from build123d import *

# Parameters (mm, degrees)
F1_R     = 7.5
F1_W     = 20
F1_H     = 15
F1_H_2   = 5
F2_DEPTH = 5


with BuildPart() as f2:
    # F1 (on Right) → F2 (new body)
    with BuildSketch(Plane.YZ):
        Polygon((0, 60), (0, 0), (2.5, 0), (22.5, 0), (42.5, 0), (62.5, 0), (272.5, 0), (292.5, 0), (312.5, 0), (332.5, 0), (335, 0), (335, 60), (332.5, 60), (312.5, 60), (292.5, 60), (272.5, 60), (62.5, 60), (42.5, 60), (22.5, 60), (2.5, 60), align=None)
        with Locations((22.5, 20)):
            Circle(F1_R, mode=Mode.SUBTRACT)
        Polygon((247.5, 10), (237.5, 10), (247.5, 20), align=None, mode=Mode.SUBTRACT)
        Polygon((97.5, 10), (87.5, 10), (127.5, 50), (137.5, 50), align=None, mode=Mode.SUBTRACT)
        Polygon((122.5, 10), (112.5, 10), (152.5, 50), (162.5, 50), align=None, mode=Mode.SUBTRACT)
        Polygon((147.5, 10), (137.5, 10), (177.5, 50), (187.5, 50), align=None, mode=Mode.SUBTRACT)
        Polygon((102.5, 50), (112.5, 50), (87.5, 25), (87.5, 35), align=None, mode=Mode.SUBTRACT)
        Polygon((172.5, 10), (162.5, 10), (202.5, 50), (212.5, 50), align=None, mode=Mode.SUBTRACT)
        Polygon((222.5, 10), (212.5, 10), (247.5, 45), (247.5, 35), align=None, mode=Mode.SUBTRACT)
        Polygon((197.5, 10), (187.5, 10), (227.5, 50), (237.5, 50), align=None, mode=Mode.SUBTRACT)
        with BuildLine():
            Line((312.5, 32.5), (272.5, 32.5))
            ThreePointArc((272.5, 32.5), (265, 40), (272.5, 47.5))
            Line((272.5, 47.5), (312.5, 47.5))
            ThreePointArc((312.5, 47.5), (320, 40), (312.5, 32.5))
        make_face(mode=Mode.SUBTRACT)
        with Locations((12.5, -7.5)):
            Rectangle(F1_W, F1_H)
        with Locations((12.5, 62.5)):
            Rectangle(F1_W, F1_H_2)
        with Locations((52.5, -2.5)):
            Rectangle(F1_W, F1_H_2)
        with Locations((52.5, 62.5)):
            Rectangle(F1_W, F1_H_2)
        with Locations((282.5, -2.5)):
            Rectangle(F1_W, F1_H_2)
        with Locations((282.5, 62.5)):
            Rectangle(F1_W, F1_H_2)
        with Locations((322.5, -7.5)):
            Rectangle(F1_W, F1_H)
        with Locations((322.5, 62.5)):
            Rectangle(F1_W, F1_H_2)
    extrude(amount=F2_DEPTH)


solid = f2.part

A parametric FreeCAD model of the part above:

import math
import FreeCAD as App
import Part
import Sketcher

V = App.Vector

doc = App.newDocument("Part")
body = doc.addObject("PartDesign::Body", "Body")

# Sketch on YZ plane
sketch1 = body.newObject("Sketcher::SketchObject", "Sketch")
sketch1.AttachmentSupport = (doc.getObject("YZ_Plane"), [""])
sketch1.MapMode = "FlatFace"
sketch1.addGeometry([
    Part.LineSegment(V(0, 60, 0), V(0, 0, 0)),  # 0
    Part.LineSegment(V(0, 0, 0), V(2.5, 0, 0)),  # 1
    Part.LineSegment(V(2.5, 0, 0), V(2.5, -15, 0)),  # 2
    Part.LineSegment(V(2.5, -15, 0), V(22.5, -15, 0)),  # 3
    Part.LineSegment(V(22.5, -15, 0), V(22.5, 0, 0)),  # 4
    Part.LineSegment(V(22.5, 0, 0), V(42.5, 0, 0)),  # 5
    Part.LineSegment(V(42.5, 0, 0), V(42.5, -5, 0)),  # 6
    Part.LineSegment(V(42.5, -5, 0), V(62.5, -5, 0)),  # 7
    Part.LineSegment(V(62.5, -5, 0), V(62.5, 0, 0)),  # 8
    Part.LineSegment(V(62.5, 0, 0), V(272.5, 0, 0)),  # 9
    Part.LineSegment(V(272.5, 0, 0), V(272.5, -5, 0)),  # 10
    Part.LineSegment(V(272.5, -5, 0), V(292.5, -5, 0)),  # 11
    Part.LineSegment(V(292.5, -5, 0), V(292.5, 0, 0)),  # 12
    Part.LineSegment(V(292.5, 0, 0), V(312.5, 0, 0)),  # 13
    Part.LineSegment(V(312.5, 0, 0), V(312.5, -15, 0)),  # 14
    Part.LineSegment(V(312.5, -15, 0), V(332.5, -15, 0)),  # 15
    Part.LineSegment(V(332.5, -15, 0), V(332.5, 0, 0)),  # 16
    Part.LineSegment(V(332.5, 0, 0), V(335, 0, 0)),  # 17
    Part.LineSegment(V(335, 0, 0), V(335, 60, 0)),  # 18
    Part.LineSegment(V(335, 60, 0), V(332.5, 60, 0)),  # 19
    Part.LineSegment(V(332.5, 60, 0), V(332.5, 65, 0)),  # 20
    Part.LineSegment(V(332.5, 65, 0), V(312.5, 65, 0)),  # 21
    Part.LineSegment(V(312.5, 65, 0), V(312.5, 60, 0)),  # 22
    Part.LineSegment(V(312.5, 60, 0), V(292.5, 60, 0)),  # 23
    Part.LineSegment(V(292.5, 60, 0), V(292.5, 65, 0)),  # 24
    Part.LineSegment(V(292.5, 65, 0), V(272.5, 65, 0)),  # 25
    Part.LineSegment(V(272.5, 65, 0), V(272.5, 60, 0)),  # 26
    Part.LineSegment(V(272.5, 60, 0), V(62.5, 60, 0)),  # 27
    Part.LineSegment(V(62.5, 60, 0), V(62.5, 65, 0)),  # 28
    Part.LineSegment(V(62.5, 65, 0), V(42.5, 65, 0)),  # 29
    Part.LineSegment(V(42.5, 65, 0), V(42.5, 60, 0)),  # 30
    Part.LineSegment(V(42.5, 60, 0), V(22.5, 60, 0)),  # 31
    Part.LineSegment(V(22.5, 60, 0), V(22.5, 65, 0)),  # 32
    Part.LineSegment(V(22.5, 65, 0), V(2.5, 65, 0)),  # 33
    Part.LineSegment(V(2.5, 65, 0), V(2.5, 60, 0)),  # 34
    Part.LineSegment(V(2.5, 60, 0), V(0, 60, 0)),  # 35
    Part.Circle(V(22.5, 20, 0), V(0, 0, 1), 7.5),  # 36
    Part.LineSegment(V(247.5, 20, 0), V(247.5, 10, 0)),  # 37
    Part.LineSegment(V(247.5, 10, 0), V(237.5, 10, 0)),  # 38
    Part.LineSegment(V(237.5, 10, 0), V(247.5, 20, 0)),  # 39
    Part.LineSegment(V(247.5, 35, 0), V(222.5, 10, 0)),  # 40
    Part.LineSegment(V(222.5, 10, 0), V(212.5, 10, 0)),  # 41
    Part.LineSegment(V(212.5, 10, 0), V(247.5, 45, 0)),  # 42
    Part.LineSegment(V(247.5, 45, 0), V(247.5, 35, 0)),  # 43
    Part.LineSegment(V(137.5, 50, 0), V(97.5, 10, 0)),  # 44
    Part.LineSegment(V(97.5, 10, 0), V(87.5, 10, 0)),  # 45
    Part.LineSegment(V(87.5, 10, 0), V(127.5, 50, 0)),  # 46
    Part.LineSegment(V(127.5, 50, 0), V(137.5, 50, 0)),  # 47
    Part.LineSegment(V(162.5, 50, 0), V(122.5, 10, 0)),  # 48
    Part.LineSegment(V(122.5, 10, 0), V(112.5, 10, 0)),  # 49
    Part.LineSegment(V(112.5, 10, 0), V(152.5, 50, 0)),  # 50
    Part.LineSegment(V(152.5, 50, 0), V(162.5, 50, 0)),  # 51
    Part.LineSegment(V(187.5, 50, 0), V(147.5, 10, 0)),  # 52
    Part.LineSegment(V(147.5, 10, 0), V(137.5, 10, 0)),  # 53
    Part.LineSegment(V(137.5, 10, 0), V(177.5, 50, 0)),  # 54
    Part.LineSegment(V(177.5, 50, 0), V(187.5, 50, 0)),  # 55
    Part.LineSegment(V(87.5, 35, 0), V(102.5, 50, 0)),  # 56
    Part.LineSegment(V(102.5, 50, 0), V(112.5, 50, 0)),  # 57
    Part.LineSegment(V(112.5, 50, 0), V(87.5, 25, 0)),  # 58
    Part.LineSegment(V(87.5, 25, 0), V(87.5, 35, 0)),  # 59
    Part.LineSegment(V(212.5, 50, 0), V(172.5, 10, 0)),  # 60
    Part.LineSegment(V(172.5, 10, 0), V(162.5, 10, 0)),  # 61
    Part.LineSegment(V(162.5, 10, 0), V(202.5, 50, 0)),  # 62
    Part.LineSegment(V(202.5, 50, 0), V(212.5, 50, 0)),  # 63
    Part.LineSegment(V(237.5, 50, 0), V(197.5, 10, 0)),  # 64
    Part.LineSegment(V(197.5, 10, 0), V(187.5, 10, 0)),  # 65
    Part.LineSegment(V(187.5, 10, 0), V(227.5, 50, 0)),  # 66
    Part.LineSegment(V(227.5, 50, 0), V(237.5, 50, 0)),  # 67
    Part.ArcOfCircle(Part.Circle(V(312.5, 40, 0), V(0, 0, 1), 7.5), math.radians(-90), math.radians(90)),  # 68
    Part.LineSegment(V(312.5, 32.5, 0), V(272.5, 32.5, 0)),  # 69
    Part.ArcOfCircle(Part.Circle(V(272.5, 40, 0), V(0, 0, 1), 7.5), math.radians(90), math.radians(270)),  # 70
    Part.LineSegment(V(272.5, 47.5, 0), V(312.5, 47.5, 0)),  # 71
], False)
sketch1.addConstraint([
    Sketcher.Constraint("Coincident", 0, 2, 1, 1),
    Sketcher.Constraint("Coincident", 1, 2, 2, 1),
    Sketcher.Constraint("Coincident", 2, 2, 3, 1),
    Sketcher.Constraint("Coincident", 3, 2, 4, 1),
    Sketcher.Constraint("Coincident", 4, 2, 5, 1),
    Sketcher.Constraint("Coincident", 5, 2, 6, 1),
    Sketcher.Constraint("Coincident", 6, 2, 7, 1),
    Sketcher.Constraint("Coincident", 7, 2, 8, 1),
    Sketcher.Constraint("Coincident", 8, 2, 9, 1),
    Sketcher.Constraint("Coincident", 9, 2, 10, 1),
    Sketcher.Constraint("Coincident", 10, 2, 11, 1),
    Sketcher.Constraint("Coincident", 11, 2, 12, 1),
    Sketcher.Constraint("Coincident", 12, 2, 13, 1),
    Sketcher.Constraint("Coincident", 13, 2, 14, 1),
    Sketcher.Constraint("Coincident", 14, 2, 15, 1),
    Sketcher.Constraint("Coincident", 15, 2, 16, 1),
    Sketcher.Constraint("Coincident", 16, 2, 17, 1),
    Sketcher.Constraint("Coincident", 17, 2, 18, 1),
    Sketcher.Constraint("Coincident", 18, 2, 19, 1),
    Sketcher.Constraint("Coincident", 19, 2, 20, 1),
    Sketcher.Constraint("Coincident", 20, 2, 21, 1),
    Sketcher.Constraint("Coincident", 21, 2, 22, 1),
    Sketcher.Constraint("Coincident", 22, 2, 23, 1),
    Sketcher.Constraint("Coincident", 23, 2, 24, 1),
    Sketcher.Constraint("Coincident", 24, 2, 25, 1),
    Sketcher.Constraint("Coincident", 25, 2, 26, 1),
    Sketcher.Constraint("Coincident", 26, 2, 27, 1),
    Sketcher.Constraint("Coincident", 27, 2, 28, 1),
    Sketcher.Constraint("Coincident", 28, 2, 29, 1),
    Sketcher.Constraint("Coincident", 29, 2, 30, 1),
    Sketcher.Constraint("Coincident", 30, 2, 31, 1),
    Sketcher.Constraint("Coincident", 31, 2, 32, 1),
    Sketcher.Constraint("Coincident", 32, 2, 33, 1),
    Sketcher.Constraint("Coincident", 33, 2, 34, 1),
    Sketcher.Constraint("Coincident", 34, 2, 35, 1),
    Sketcher.Constraint("Coincident", 35, 2, 0, 1),
    Sketcher.Constraint("Coincident", 37, 2, 38, 1),
    Sketcher.Constraint("Coincident", 38, 2, 39, 1),
    Sketcher.Constraint("Coincident", 39, 2, 37, 1),
    Sketcher.Constraint("Coincident", 40, 2, 41, 1),
    Sketcher.Constraint("Coincident", 41, 2, 42, 1),
    Sketcher.Constraint("Coincident", 42, 2, 43, 1),
    Sketcher.Constraint("Coincident", 43, 2, 40, 1),
    Sketcher.Constraint("Coincident", 44, 2, 45, 1),
    Sketcher.Constraint("Coincident", 45, 2, 46, 1),
    Sketcher.Constraint("Coincident", 46, 2, 47, 1),
    Sketcher.Constraint("Coincident", 47, 2, 44, 1),
    Sketcher.Constraint("Coincident", 48, 2, 49, 1),
    Sketcher.Constraint("Coincident", 49, 2, 50, 1),
    Sketcher.Constraint("Coincident", 50, 2, 51, 1),
    Sketcher.Constraint("Coincident", 51, 2, 48, 1),
    Sketcher.Constraint("Coincident", 52, 2, 53, 1),
    Sketcher.Constraint("Coincident", 53, 2, 54, 1),
    Sketcher.Constraint("Coincident", 54, 2, 55, 1),
    Sketcher.Constraint("Coincident", 55, 2, 52, 1),
    Sketcher.Constraint("Coincident", 56, 2, 57, 1),
    Sketcher.Constraint("Coincident", 57, 2, 58, 1),
    Sketcher.Constraint("Coincident", 58, 2, 59, 1),
    Sketcher.Constraint("Coincident", 59, 2, 56, 1),
    Sketcher.Constraint("Coincident", 60, 2, 61, 1),
    Sketcher.Constraint("Coincident", 61, 2, 62, 1),
    Sketcher.Constraint("Coincident", 62, 2, 63, 1),
    Sketcher.Constraint("Coincident", 63, 2, 60, 1),
    Sketcher.Constraint("Coincident", 64, 2, 65, 1),
    Sketcher.Constraint("Coincident", 65, 2, 66, 1),
    Sketcher.Constraint("Coincident", 66, 2, 67, 1),
    Sketcher.Constraint("Coincident", 67, 2, 64, 1),
    Sketcher.Constraint("Tangent", 68, 1, 69, 1),
    Sketcher.Constraint("Tangent", 69, 2, 70, 2),
    Sketcher.Constraint("Tangent", 70, 1, 71, 1),
    Sketcher.Constraint("Tangent", 71, 2, 68, 2),
    Sketcher.Constraint("Vertical", 0),
    Sketcher.Constraint("Horizontal", 1),
    Sketcher.Constraint("Vertical", 2),
    Sketcher.Constraint("Horizontal", 3),
    Sketcher.Constraint("Vertical", 4),
    Sketcher.Constraint("Horizontal", 5),
    Sketcher.Constraint("Vertical", 6),
    Sketcher.Constraint("Horizontal", 7),
    Sketcher.Constraint("Vertical", 8),
    Sketcher.Constraint("Horizontal", 9),
    Sketcher.Constraint("Vertical", 10),
    Sketcher.Constraint("Horizontal", 11),
    Sketcher.Constraint("Vertical", 12),
    Sketcher.Constraint("Horizontal", 13),
    Sketcher.Constraint("Vertical", 14),
    Sketcher.Constraint("Horizontal", 15),
    Sketcher.Constraint("Vertical", 16),
    Sketcher.Constraint("Horizontal", 17),
    Sketcher.Constraint("Vertical", 18),
    Sketcher.Constraint("Horizontal", 19),
    Sketcher.Constraint("Vertical", 20),
    Sketcher.Constraint("Horizontal", 21),
    Sketcher.Constraint("Vertical", 22),
    Sketcher.Constraint("Horizontal", 23),
    Sketcher.Constraint("Vertical", 24),
    Sketcher.Constraint("Horizontal", 25),
    Sketcher.Constraint("Vertical", 26),
    Sketcher.Constraint("Horizontal", 27),
    Sketcher.Constraint("Vertical", 28),
    Sketcher.Constraint("Horizontal", 29),
    Sketcher.Constraint("Vertical", 30),
    Sketcher.Constraint("Horizontal", 31),
    Sketcher.Constraint("Vertical", 32),
    Sketcher.Constraint("Horizontal", 33),
    Sketcher.Constraint("Vertical", 34),
    Sketcher.Constraint("Horizontal", 35),
    Sketcher.Constraint("Vertical", 37),
    Sketcher.Constraint("Horizontal", 38),
    Sketcher.Constraint("Horizontal", 41),
    Sketcher.Constraint("Vertical", 43),
    Sketcher.Constraint("Horizontal", 45),
    Sketcher.Constraint("Horizontal", 47),
    Sketcher.Constraint("Horizontal", 49),
    Sketcher.Constraint("Horizontal", 51),
    Sketcher.Constraint("Horizontal", 53),
    Sketcher.Constraint("Horizontal", 55),
    Sketcher.Constraint("Horizontal", 57),
    Sketcher.Constraint("Vertical", 59),
    Sketcher.Constraint("Horizontal", 61),
    Sketcher.Constraint("Horizontal", 63),
    Sketcher.Constraint("Horizontal", 65),
    Sketcher.Constraint("Horizontal", 67),
    Sketcher.Constraint("Horizontal", 69),
    Sketcher.Constraint("Horizontal", 71),
    Sketcher.Constraint("Coincident", 0, 2, -1, 1),
    Sketcher.Constraint("Equal", 36, 68),
    Sketcher.Constraint("PointOnObject", 4, 2, -1),
    Sketcher.Constraint("PointOnObject", 8, 2, -1),
    Sketcher.Constraint("PointOnObject", 12, 2, -1),
    Sketcher.Constraint("PointOnObject", 16, 2, -1),
    Sketcher.Constraint("Parallel", 39, 40),
    Sketcher.Constraint("Parallel", 40, 42),
    Sketcher.Constraint("Parallel", 42, 44),
    Sketcher.Constraint("Parallel", 44, 46),
    Sketcher.Constraint("Parallel", 46, 48),
    Sketcher.Constraint("Parallel", 48, 50),
    Sketcher.Constraint("Parallel", 50, 52),
    Sketcher.Constraint("Parallel", 52, 54),
    Sketcher.Constraint("Parallel", 54, 56),
    Sketcher.Constraint("Parallel", 56, 58),
    Sketcher.Constraint("Parallel", 58, 60),
    Sketcher.Constraint("Parallel", 60, 62),
    Sketcher.Constraint("Parallel", 62, 64),
    Sketcher.Constraint("Parallel", 64, 66),
    Sketcher.Constraint("Horizontal", 7, 2, 10, 2),
    Sketcher.Constraint("Horizontal", 3, 2, 14, 2),
    Sketcher.Constraint("Horizontal", 19, 2, 22, 2),
    Sketcher.Constraint("Horizontal", 21, 2, 24, 2),
    Sketcher.Constraint("Horizontal", 23, 2, 26, 2),
    Sketcher.Constraint("Horizontal", 25, 2, 28, 2),
    Sketcher.Constraint("Horizontal", 27, 2, 30, 2),
    Sketcher.Constraint("Horizontal", 29, 2, 32, 2),
    Sketcher.Constraint("Horizontal", 31, 2, 34, 2),
    Sketcher.Constraint("Horizontal", 36, 3, 39, 2),
    Sketcher.Constraint("Horizontal", 38, 2, 40, 2),
    Sketcher.Constraint("Horizontal", 41, 2, 44, 2),
    Sketcher.Constraint("Horizontal", 45, 2, 48, 2),
    Sketcher.Constraint("Horizontal", 47, 2, 50, 2),
    Sketcher.Constraint("Horizontal", 49, 2, 52, 2),
    Sketcher.Constraint("Horizontal", 51, 2, 54, 2),
    Sketcher.Constraint("Horizontal", 55, 2, 56, 2),
    Sketcher.Constraint("Horizontal", 43, 2, 59, 2),
    Sketcher.Constraint("Horizontal", 53, 2, 60, 2),
    Sketcher.Constraint("Horizontal", 57, 2, 62, 2),
    Sketcher.Constraint("Horizontal", 61, 2, 64, 2),
    Sketcher.Constraint("Horizontal", 63, 2, 66, 2),
    Sketcher.Constraint("Vertical", 36, 3, 3, 2),
    Sketcher.Constraint("Vertical", 70, 3, 9, 2),
    Sketcher.Constraint("Vertical", 68, 3, 13, 2),
    Sketcher.Constraint("Vertical", 16, 2, 19, 2),
    Sketcher.Constraint("Vertical", 14, 2, 21, 2),
    Sketcher.Constraint("Vertical", 12, 2, 23, 2),
    Sketcher.Constraint("Vertical", 10, 2, 25, 2),
    Sketcher.Constraint("Vertical", 8, 2, 27, 2),
    Sketcher.Constraint("Vertical", 6, 2, 29, 2),
    Sketcher.Constraint("Vertical", 4, 2, 31, 2),
    Sketcher.Constraint("Vertical", 2, 2, 33, 2),
    Sketcher.Constraint("Vertical", 39, 2, 42, 2),
    Sketcher.Constraint("Vertical", 47, 2, 53, 2),
    Sketcher.Constraint("Vertical", 49, 2, 57, 2),
    Sketcher.Constraint("Vertical", 45, 2, 58, 2),
    Sketcher.Constraint("Vertical", 51, 2, 61, 2),
    Sketcher.Constraint("Vertical", 41, 2, 63, 2),
    Sketcher.Constraint("Vertical", 55, 2, 65, 2),
    Sketcher.Constraint("Vertical", 38, 2, 67, 2),
    Sketcher.Constraint("Equal", 3, 5),
    Sketcher.Constraint("Equal", 5, 7),
    Sketcher.Constraint("Equal", 7, 11),
    Sketcher.Constraint("Equal", 11, 13),
    Sketcher.Constraint("Equal", 13, 15),
    Sketcher.Constraint("Equal", 1, 17),
    Sketcher.Constraint("Equal", 38, 41),
    Sketcher.Constraint("Equal", 41, 45),
    Sketcher.Constraint("Equal", 47, 49),
    Sketcher.Constraint("Equal", 51, 53),
    Sketcher.Constraint("Equal", 55, 57),
    Sketcher.Constraint("Equal", 57, 61),
    Sketcher.Constraint("Equal", 12, 20),
    Sketcher.Constraint("Equal", 67, 37),
    Sketcher.Constraint("Equal", 40, 58),
    Sketcher.Constraint("Diameter", 36, 15.0),
    Sketcher.Constraint("DistanceX", 3, 1, 3, 2, 20.0),
    Sketcher.Constraint("DistanceX", 9, 1, 9, 2, 210.0),
    Sketcher.Constraint("DistanceX", 38, 2, 38, 1, 10.0),
    Sketcher.Constraint("DistanceY", 0, 2, 0, 1, 60.0),
    Sketcher.Constraint("DistanceY", 2, 2, 2, 1, 15.0),
    Sketcher.Constraint("DistanceY", 6, 2, 6, 1, 5.0),
    Sketcher.Constraint("DistanceX", 1, 1, 1, 2, 2.5),
    Sketcher.Constraint("DistanceY", -1, 1, 36, 3, 20.0),
    Sketcher.Constraint("DistanceY", -1, 1, 68, 3, 40.0),
    Sketcher.Constraint("DistanceY", -1, 1, 42, 2, 45.0),
    Sketcher.Constraint("DistanceX", -1, 1, 37, 2, 247.5),
])
pad1 = body.newObject("PartDesign::Pad", "Pad")
pad1.Profile = sketch1
pad1.Length = 5

doc.recompute()
